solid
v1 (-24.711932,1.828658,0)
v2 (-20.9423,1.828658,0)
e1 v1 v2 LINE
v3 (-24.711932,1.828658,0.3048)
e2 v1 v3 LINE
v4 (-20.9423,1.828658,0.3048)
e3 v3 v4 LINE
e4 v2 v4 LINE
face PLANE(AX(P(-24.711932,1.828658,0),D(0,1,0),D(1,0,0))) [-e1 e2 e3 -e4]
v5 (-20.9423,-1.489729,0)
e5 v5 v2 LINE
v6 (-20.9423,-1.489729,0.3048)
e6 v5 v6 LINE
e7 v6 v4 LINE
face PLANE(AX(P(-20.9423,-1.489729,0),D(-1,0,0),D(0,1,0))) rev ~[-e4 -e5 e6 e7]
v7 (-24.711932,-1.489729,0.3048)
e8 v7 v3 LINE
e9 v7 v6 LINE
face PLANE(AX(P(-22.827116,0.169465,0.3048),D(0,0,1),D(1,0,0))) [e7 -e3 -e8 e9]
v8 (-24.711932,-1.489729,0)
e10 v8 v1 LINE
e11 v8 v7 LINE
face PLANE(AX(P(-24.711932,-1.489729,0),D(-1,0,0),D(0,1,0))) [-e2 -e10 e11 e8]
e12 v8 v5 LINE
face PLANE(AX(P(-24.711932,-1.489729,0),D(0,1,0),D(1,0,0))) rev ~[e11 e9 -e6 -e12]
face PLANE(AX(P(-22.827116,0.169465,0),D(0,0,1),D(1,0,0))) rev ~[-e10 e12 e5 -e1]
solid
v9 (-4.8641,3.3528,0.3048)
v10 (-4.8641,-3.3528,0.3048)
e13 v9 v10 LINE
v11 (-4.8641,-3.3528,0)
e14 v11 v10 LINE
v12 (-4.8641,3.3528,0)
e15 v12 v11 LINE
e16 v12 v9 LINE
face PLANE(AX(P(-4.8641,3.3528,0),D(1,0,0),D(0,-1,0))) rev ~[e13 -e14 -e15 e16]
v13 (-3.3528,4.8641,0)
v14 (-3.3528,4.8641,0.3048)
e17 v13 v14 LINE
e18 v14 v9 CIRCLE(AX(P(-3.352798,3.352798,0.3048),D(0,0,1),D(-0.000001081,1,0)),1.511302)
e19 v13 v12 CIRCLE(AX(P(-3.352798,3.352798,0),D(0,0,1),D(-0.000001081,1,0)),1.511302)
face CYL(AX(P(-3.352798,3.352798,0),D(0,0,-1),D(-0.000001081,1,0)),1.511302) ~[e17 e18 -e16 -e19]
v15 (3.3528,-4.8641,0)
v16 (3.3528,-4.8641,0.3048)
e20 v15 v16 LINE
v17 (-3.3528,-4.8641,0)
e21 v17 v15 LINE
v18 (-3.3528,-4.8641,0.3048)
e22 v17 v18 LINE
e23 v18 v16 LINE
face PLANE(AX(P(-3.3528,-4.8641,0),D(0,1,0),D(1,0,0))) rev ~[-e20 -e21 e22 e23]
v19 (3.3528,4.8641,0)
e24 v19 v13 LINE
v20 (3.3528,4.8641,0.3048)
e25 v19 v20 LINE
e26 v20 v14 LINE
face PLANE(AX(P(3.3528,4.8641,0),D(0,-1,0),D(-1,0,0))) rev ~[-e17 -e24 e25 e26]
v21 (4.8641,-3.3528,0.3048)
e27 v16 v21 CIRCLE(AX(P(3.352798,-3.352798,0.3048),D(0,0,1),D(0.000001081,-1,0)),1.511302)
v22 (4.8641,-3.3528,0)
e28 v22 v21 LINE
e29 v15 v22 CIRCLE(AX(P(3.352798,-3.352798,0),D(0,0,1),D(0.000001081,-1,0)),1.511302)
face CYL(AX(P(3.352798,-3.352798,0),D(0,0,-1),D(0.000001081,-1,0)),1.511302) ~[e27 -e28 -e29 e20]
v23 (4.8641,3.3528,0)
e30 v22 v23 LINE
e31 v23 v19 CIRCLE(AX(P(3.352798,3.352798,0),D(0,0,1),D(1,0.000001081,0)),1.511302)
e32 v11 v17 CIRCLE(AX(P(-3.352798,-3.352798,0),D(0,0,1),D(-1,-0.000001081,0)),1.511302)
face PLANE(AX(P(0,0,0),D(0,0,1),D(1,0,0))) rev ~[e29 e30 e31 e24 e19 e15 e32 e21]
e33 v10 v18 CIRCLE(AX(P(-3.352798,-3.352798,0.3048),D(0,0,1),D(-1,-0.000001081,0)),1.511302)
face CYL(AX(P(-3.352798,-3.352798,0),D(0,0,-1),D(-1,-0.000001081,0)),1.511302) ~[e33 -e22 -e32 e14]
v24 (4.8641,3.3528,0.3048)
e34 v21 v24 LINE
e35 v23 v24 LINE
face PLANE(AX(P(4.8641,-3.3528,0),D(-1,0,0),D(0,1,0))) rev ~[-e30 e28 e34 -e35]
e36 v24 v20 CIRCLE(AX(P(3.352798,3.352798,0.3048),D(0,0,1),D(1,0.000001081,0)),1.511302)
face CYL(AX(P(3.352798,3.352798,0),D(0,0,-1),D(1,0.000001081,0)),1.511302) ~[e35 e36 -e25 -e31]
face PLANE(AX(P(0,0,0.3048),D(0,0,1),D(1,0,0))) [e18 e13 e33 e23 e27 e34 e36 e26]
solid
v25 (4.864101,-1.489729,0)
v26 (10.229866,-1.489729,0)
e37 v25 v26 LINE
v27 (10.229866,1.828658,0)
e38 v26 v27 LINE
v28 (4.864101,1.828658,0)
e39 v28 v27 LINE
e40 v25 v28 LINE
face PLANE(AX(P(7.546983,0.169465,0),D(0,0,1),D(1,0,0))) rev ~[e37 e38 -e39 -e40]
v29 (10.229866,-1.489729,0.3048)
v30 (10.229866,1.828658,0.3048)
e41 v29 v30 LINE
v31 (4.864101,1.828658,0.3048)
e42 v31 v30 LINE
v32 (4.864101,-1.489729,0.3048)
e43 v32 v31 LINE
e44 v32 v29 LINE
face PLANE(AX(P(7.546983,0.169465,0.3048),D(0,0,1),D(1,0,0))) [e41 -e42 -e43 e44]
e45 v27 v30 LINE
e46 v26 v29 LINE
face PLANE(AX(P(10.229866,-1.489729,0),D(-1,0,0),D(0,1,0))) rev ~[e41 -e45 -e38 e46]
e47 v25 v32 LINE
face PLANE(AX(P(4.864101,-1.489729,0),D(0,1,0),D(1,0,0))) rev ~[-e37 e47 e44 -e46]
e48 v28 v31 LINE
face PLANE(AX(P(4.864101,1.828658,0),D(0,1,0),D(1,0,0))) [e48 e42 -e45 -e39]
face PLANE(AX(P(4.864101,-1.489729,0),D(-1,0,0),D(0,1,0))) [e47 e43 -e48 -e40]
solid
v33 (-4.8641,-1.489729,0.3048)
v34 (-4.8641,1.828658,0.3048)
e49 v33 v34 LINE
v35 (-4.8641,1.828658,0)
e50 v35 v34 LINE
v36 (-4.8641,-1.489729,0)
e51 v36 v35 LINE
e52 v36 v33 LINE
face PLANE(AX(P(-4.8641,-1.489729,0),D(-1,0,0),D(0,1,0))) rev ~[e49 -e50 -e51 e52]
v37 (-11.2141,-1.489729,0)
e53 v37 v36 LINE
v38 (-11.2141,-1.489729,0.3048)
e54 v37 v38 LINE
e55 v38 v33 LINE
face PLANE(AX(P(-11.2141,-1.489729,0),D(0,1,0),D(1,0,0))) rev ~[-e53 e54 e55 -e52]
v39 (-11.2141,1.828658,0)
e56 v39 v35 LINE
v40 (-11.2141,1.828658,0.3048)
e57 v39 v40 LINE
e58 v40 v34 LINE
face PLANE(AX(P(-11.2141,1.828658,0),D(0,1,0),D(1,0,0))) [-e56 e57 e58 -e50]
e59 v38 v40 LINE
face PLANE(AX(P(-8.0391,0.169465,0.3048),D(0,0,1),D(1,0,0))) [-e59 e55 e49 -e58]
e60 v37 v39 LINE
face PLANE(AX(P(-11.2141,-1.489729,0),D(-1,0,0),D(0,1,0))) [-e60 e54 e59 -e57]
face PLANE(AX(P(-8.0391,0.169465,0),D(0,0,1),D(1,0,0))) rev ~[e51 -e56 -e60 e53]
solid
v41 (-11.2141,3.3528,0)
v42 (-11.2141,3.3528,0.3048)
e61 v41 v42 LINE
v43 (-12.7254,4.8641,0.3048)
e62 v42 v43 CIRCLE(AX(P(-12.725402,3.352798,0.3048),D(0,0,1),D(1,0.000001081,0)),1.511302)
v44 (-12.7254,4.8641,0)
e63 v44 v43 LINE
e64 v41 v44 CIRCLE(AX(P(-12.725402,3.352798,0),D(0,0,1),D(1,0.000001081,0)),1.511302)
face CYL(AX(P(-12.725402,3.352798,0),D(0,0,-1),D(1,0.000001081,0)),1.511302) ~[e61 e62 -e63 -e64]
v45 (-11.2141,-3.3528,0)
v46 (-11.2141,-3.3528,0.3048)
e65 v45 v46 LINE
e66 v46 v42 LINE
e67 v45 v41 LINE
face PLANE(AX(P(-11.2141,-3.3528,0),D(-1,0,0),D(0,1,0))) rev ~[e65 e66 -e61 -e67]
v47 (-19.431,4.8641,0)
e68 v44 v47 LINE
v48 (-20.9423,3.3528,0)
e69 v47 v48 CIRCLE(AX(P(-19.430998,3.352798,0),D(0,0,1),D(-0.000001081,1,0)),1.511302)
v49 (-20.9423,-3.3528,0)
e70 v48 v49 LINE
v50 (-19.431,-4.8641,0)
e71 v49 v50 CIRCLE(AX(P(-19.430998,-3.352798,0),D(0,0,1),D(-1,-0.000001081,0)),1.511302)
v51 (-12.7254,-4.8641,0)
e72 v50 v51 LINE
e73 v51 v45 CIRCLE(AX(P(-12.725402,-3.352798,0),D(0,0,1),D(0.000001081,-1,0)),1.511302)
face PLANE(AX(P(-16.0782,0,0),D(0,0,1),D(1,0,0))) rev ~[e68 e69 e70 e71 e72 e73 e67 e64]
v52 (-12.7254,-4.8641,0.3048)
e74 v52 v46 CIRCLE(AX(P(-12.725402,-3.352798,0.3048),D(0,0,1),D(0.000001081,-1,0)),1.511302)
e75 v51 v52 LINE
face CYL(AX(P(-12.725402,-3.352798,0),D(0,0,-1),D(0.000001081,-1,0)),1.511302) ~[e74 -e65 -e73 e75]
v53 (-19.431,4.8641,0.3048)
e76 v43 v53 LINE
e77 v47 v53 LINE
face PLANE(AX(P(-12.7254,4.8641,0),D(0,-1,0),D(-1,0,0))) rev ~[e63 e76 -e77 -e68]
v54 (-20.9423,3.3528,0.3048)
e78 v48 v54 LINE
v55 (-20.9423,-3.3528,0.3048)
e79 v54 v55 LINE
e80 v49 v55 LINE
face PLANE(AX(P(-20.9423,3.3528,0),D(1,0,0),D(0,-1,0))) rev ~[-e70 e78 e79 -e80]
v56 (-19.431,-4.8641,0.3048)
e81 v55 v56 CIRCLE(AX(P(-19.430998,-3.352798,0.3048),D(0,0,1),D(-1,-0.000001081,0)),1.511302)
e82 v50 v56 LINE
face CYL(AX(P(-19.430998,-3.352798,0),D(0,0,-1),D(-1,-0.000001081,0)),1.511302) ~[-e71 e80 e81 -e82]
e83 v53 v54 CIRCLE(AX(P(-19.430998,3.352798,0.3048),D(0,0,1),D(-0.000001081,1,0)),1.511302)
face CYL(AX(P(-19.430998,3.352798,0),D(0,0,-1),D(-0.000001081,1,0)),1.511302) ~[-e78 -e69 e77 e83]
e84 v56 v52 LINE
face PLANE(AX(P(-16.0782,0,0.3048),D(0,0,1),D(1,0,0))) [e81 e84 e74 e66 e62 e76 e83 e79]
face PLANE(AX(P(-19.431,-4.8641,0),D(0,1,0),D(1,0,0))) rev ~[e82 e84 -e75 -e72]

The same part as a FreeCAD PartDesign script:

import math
import FreeCAD as App
import Part
import Sketcher
from FreeCAD import Vector
Q = App.Units.Quantity


def add_polygon(sketch, points):
    """Adds a closed chain of lines whose ends are joined by coincident constraints."""
    first, n = sketch.GeometryCount, len(points)
    for a, b in zip(points, points[1:] + points[:1]):
        sketch.addGeometry(Part.LineSegment(App.Vector(*a, 0), App.Vector(*b, 0)), False)
    for i in range(n):
        sketch.addConstraint(Sketcher.Constraint("Coincident", first + i, 2, first + (i + 1) % n, 1))

doc = App.newDocument("Part")
body = doc.addObject("PartDesign::Body", "Body")
body.AllowCompound = True

sketch1 = body.newObject("Sketcher::SketchObject", "Sketch")
sketch1.AttachmentSupport = (doc.getObject("XY_Plane"), [""])
sketch1.MapMode = "FlatFace"
sketch1.addGeometry([
    Part.LineSegment(Vector(-11.2, -3.4, 0), Vector(-11.2, 3.4, 0)),
    Part.ArcOfCircle(Part.Circle(Vector(-12.7, 3.4, 0), Vector(0, 0, 1), 1.5), math.radians(0), math.radians(90)),
    Part.LineSegment(Vector(-12.7, 4.9, 0), Vector(-19.4, 4.9, 0)),
    Part.ArcOfCircle(Part.Circle(Vector(-19.4, 3.4, 0), Vector(0, 0, 1), 1.5), math.radians(90), math.radians(180)),
    Part.LineSegment(Vector(-20.9, 3.4, 0), Vector(-20.9, -3.4, 0)),
    Part.ArcOfCircle(Part.Circle(Vector(-19.4, -3.4, 0), Vector(0, 0, 1), 1.5), math.radians(-180), math.radians(-90)),
    Part.LineSegment(Vector(-19.4, -4.9, 0), Vector(-12.7, -4.9, 0)),
    Part.ArcOfCircle(Part.Circle(Vector(-12.7, -3.4, 0), Vector(0, 0, 1), 1.5), math.radians(-90), math.radians(0)),
    Part.LineSegment(Vector(-3.4, -4.9, 0), Vector(3.4, -4.9, 0)),
    Part.ArcOfCircle(Part.Circle(Vector(3.4, -3.4, 0), Vector(0, 0, 1), 1.5), math.radians(-90), math.radians(0)),
    Part.LineSegment(Vector(4.9, -3.4, 0), Vector(4.9, 3.4, 0)),
    Part.ArcOfCircle(Part.Circle(Vector(3.4, 3.4, 0), Vector(0, 0, 1), 1.5), math.radians(0), math.radians(90)),
    Part.LineSegment(Vector(3.4, 4.9, 0), Vector(-3.4, 4.9, 0)),
    Part.ArcOfCircle(Part.Circle(Vector(-3.4, 3.4, 0), Vector(0, 0, 1), 1.5), math.radians(90), math.radians(180)),
    Part.LineSegment(Vector(-4.9, 3.4, 0), Vector(-4.9, -3.4, 0)),
    Part.ArcOfCircle(Part.Circle(Vector(-3.4, -3.4, 0), Vector(0, 0, 1), 1.5), math.radians(-180), math.radians(-90)),
], False)
sketch1.addConstraint([
    Sketcher.Constraint("Tangent", 0, 2, 1, 1),
    Sketcher.Constraint("Tangent", 1, 2, 2, 1),
    Sketcher.Constraint("Tangent", 2, 2, 3, 1),
    Sketcher.Constraint("Tangent", 3, 2, 4, 1),
    Sketcher.Constraint("Tangent", 4, 2, 5, 1),
    Sketcher.Constraint("Tangent", 5, 2, 6, 1),
    Sketcher.Constraint("Tangent", 6, 2, 7, 1),
    Sketcher.Constraint("Tangent", 7, 2, 0, 1),
    Sketcher.Constraint("Tangent", 8, 2, 9, 1),
    Sketcher.Constraint("Tangent", 9, 2, 10, 1),
    Sketcher.Constraint("Tangent", 10, 2, 11, 1),
    Sketcher.Constraint("Tangent", 11, 2, 12, 1),
    Sketcher.Constraint("Tangent", 12, 2, 13, 1),
    Sketcher.Constraint("Tangent", 13, 2, 14, 1),
    Sketcher.Constraint("Tangent", 14, 2, 15, 1),
    Sketcher.Constraint("Tangent", 15, 2, 8, 1),
    Sketcher.Constraint("Vertical", 0),
    Sketcher.Constraint("Horizontal", 2),
    Sketcher.Constraint("Vertical", 4),
    Sketcher.Constraint("Horizontal", 6),
    Sketcher.Constraint("Horizontal", 8),
    Sketcher.Constraint("Vertical", 10),
    Sketcher.Constraint("Horizontal", 12),
    Sketcher.Constraint("Vertical", 14),
    Sketcher.Constraint("Equal", 1, 3),
    Sketcher.Constraint("Equal", 3, 5),
    Sketcher.Constraint("Equal", 5, 7),
    Sketcher.Constraint("Equal", 7, 9),
    Sketcher.Constraint("Equal", 9, 11),
    Sketcher.Constraint("Equal", 11, 13),
    Sketcher.Constraint("Equal", 13, 15),
    Sketcher.Constraint("Symmetric", 9, 3, 13, 3, -1, 1),
    Sketcher.Constraint("Horizontal", 7, 3, 9, 3),
    Sketcher.Constraint("Horizontal", 3, 3, 11, 3),
    Sketcher.Constraint("Equal", 6, 8),
    Sketcher.Constraint("Equal", 12, 0),
    Sketcher.Constraint("Radius", 1, Q("0.0595001 in")),
    Sketcher.Constraint("DistanceX", 2, 2, 2, 1, Q("0.264 in")),
    Sketcher.Constraint("DistanceX", 0, 2, 13, 2, Q("0.25 in")),
])
pad1 = body.newObject("PartDesign::Pad", "Pad")
pad1.Profile = sketch1
pad1.Length = Q("0.012 in")
body2 = doc.addObject("PartDesign::Body", "Body001")
body2.AllowCompound = True

sketch2 = body2.newObject("Sketcher::SketchObject", "Sketch001")
sketch2.AttachmentSupport = (doc.getObject("XY_Plane001"), [""])
sketch2.MapMode = "FlatFace"
add_polygon(sketch2, [(-24.7, 1.8), (-24.7, -1.5), (-20.9, -1.5), (-20.9, 1.8)])
add_polygon(sketch2, [(-11.2, 1.8), (-11.2, -1.5), (-4.9, -1.5), (-4.9, 1.8)])
add_polygon(sketch2, [(4.9, 1.8), (4.9, -1.5), (10.2, -1.5), (10.2, 1.8)])
sketch2.addConstraint([
    Sketcher.Constraint("Vertical", 0),
    Sketcher.Constraint("Horizontal", 1),
    Sketcher.Constraint("Vertical", 2),
    Sketcher.Constraint("Horizontal", 3),
    Sketcher.Constraint("Vertical", 4),
    Sketcher.Constraint("Horizontal", 5),
    Sketcher.Constraint("Vertical", 6),
    Sketcher.Constraint("Horizontal", 7),
    Sketcher.Constraint("Vertical", 8),
    Sketcher.Constraint("Horizontal", 9),
    Sketcher.Constraint("Vertical", 10),
    Sketcher.Constraint("Horizontal", 11),
    Sketcher.Constraint("Symmetric", 5, 2, 8, 2, -2),
    Sketcher.Constraint("Horizontal", 1, 2, 4, 2),
    Sketcher.Constraint("Horizontal", 3, 2, 6, 2),
    Sketcher.Constraint("Horizontal", 7, 2, 10, 2),
    Sketcher.Constraint("DistanceX", 5, 1, 5, 2, Q("0.25 in")),
    Sketcher.Constraint("DistanceX", 1, 2, 4, 2, Q("0.383 in")),
    Sketcher.Constraint("DistanceX", 5, 2, 8, 2, Q("0.383 in")),
    Sketcher.Constraint("DistanceX", 1, 1, 1, 2, 3.769632),
    Sketcher.Constraint("DistanceX", 9, 1, 9, 2, 5.365765),
    Sketcher.Constraint("DistanceY", 0, 2, 0, 1, 3.318387),
    Sketcher.Constraint("DistanceY", 0, 2, -1, 1, 1.489729),
])
pad2 = body2.newObject("PartDesign::Pad", "Pad001")
pad2.Profile = sketch2
pad2.Length = Q("0.012 in")

doc.recompute()
